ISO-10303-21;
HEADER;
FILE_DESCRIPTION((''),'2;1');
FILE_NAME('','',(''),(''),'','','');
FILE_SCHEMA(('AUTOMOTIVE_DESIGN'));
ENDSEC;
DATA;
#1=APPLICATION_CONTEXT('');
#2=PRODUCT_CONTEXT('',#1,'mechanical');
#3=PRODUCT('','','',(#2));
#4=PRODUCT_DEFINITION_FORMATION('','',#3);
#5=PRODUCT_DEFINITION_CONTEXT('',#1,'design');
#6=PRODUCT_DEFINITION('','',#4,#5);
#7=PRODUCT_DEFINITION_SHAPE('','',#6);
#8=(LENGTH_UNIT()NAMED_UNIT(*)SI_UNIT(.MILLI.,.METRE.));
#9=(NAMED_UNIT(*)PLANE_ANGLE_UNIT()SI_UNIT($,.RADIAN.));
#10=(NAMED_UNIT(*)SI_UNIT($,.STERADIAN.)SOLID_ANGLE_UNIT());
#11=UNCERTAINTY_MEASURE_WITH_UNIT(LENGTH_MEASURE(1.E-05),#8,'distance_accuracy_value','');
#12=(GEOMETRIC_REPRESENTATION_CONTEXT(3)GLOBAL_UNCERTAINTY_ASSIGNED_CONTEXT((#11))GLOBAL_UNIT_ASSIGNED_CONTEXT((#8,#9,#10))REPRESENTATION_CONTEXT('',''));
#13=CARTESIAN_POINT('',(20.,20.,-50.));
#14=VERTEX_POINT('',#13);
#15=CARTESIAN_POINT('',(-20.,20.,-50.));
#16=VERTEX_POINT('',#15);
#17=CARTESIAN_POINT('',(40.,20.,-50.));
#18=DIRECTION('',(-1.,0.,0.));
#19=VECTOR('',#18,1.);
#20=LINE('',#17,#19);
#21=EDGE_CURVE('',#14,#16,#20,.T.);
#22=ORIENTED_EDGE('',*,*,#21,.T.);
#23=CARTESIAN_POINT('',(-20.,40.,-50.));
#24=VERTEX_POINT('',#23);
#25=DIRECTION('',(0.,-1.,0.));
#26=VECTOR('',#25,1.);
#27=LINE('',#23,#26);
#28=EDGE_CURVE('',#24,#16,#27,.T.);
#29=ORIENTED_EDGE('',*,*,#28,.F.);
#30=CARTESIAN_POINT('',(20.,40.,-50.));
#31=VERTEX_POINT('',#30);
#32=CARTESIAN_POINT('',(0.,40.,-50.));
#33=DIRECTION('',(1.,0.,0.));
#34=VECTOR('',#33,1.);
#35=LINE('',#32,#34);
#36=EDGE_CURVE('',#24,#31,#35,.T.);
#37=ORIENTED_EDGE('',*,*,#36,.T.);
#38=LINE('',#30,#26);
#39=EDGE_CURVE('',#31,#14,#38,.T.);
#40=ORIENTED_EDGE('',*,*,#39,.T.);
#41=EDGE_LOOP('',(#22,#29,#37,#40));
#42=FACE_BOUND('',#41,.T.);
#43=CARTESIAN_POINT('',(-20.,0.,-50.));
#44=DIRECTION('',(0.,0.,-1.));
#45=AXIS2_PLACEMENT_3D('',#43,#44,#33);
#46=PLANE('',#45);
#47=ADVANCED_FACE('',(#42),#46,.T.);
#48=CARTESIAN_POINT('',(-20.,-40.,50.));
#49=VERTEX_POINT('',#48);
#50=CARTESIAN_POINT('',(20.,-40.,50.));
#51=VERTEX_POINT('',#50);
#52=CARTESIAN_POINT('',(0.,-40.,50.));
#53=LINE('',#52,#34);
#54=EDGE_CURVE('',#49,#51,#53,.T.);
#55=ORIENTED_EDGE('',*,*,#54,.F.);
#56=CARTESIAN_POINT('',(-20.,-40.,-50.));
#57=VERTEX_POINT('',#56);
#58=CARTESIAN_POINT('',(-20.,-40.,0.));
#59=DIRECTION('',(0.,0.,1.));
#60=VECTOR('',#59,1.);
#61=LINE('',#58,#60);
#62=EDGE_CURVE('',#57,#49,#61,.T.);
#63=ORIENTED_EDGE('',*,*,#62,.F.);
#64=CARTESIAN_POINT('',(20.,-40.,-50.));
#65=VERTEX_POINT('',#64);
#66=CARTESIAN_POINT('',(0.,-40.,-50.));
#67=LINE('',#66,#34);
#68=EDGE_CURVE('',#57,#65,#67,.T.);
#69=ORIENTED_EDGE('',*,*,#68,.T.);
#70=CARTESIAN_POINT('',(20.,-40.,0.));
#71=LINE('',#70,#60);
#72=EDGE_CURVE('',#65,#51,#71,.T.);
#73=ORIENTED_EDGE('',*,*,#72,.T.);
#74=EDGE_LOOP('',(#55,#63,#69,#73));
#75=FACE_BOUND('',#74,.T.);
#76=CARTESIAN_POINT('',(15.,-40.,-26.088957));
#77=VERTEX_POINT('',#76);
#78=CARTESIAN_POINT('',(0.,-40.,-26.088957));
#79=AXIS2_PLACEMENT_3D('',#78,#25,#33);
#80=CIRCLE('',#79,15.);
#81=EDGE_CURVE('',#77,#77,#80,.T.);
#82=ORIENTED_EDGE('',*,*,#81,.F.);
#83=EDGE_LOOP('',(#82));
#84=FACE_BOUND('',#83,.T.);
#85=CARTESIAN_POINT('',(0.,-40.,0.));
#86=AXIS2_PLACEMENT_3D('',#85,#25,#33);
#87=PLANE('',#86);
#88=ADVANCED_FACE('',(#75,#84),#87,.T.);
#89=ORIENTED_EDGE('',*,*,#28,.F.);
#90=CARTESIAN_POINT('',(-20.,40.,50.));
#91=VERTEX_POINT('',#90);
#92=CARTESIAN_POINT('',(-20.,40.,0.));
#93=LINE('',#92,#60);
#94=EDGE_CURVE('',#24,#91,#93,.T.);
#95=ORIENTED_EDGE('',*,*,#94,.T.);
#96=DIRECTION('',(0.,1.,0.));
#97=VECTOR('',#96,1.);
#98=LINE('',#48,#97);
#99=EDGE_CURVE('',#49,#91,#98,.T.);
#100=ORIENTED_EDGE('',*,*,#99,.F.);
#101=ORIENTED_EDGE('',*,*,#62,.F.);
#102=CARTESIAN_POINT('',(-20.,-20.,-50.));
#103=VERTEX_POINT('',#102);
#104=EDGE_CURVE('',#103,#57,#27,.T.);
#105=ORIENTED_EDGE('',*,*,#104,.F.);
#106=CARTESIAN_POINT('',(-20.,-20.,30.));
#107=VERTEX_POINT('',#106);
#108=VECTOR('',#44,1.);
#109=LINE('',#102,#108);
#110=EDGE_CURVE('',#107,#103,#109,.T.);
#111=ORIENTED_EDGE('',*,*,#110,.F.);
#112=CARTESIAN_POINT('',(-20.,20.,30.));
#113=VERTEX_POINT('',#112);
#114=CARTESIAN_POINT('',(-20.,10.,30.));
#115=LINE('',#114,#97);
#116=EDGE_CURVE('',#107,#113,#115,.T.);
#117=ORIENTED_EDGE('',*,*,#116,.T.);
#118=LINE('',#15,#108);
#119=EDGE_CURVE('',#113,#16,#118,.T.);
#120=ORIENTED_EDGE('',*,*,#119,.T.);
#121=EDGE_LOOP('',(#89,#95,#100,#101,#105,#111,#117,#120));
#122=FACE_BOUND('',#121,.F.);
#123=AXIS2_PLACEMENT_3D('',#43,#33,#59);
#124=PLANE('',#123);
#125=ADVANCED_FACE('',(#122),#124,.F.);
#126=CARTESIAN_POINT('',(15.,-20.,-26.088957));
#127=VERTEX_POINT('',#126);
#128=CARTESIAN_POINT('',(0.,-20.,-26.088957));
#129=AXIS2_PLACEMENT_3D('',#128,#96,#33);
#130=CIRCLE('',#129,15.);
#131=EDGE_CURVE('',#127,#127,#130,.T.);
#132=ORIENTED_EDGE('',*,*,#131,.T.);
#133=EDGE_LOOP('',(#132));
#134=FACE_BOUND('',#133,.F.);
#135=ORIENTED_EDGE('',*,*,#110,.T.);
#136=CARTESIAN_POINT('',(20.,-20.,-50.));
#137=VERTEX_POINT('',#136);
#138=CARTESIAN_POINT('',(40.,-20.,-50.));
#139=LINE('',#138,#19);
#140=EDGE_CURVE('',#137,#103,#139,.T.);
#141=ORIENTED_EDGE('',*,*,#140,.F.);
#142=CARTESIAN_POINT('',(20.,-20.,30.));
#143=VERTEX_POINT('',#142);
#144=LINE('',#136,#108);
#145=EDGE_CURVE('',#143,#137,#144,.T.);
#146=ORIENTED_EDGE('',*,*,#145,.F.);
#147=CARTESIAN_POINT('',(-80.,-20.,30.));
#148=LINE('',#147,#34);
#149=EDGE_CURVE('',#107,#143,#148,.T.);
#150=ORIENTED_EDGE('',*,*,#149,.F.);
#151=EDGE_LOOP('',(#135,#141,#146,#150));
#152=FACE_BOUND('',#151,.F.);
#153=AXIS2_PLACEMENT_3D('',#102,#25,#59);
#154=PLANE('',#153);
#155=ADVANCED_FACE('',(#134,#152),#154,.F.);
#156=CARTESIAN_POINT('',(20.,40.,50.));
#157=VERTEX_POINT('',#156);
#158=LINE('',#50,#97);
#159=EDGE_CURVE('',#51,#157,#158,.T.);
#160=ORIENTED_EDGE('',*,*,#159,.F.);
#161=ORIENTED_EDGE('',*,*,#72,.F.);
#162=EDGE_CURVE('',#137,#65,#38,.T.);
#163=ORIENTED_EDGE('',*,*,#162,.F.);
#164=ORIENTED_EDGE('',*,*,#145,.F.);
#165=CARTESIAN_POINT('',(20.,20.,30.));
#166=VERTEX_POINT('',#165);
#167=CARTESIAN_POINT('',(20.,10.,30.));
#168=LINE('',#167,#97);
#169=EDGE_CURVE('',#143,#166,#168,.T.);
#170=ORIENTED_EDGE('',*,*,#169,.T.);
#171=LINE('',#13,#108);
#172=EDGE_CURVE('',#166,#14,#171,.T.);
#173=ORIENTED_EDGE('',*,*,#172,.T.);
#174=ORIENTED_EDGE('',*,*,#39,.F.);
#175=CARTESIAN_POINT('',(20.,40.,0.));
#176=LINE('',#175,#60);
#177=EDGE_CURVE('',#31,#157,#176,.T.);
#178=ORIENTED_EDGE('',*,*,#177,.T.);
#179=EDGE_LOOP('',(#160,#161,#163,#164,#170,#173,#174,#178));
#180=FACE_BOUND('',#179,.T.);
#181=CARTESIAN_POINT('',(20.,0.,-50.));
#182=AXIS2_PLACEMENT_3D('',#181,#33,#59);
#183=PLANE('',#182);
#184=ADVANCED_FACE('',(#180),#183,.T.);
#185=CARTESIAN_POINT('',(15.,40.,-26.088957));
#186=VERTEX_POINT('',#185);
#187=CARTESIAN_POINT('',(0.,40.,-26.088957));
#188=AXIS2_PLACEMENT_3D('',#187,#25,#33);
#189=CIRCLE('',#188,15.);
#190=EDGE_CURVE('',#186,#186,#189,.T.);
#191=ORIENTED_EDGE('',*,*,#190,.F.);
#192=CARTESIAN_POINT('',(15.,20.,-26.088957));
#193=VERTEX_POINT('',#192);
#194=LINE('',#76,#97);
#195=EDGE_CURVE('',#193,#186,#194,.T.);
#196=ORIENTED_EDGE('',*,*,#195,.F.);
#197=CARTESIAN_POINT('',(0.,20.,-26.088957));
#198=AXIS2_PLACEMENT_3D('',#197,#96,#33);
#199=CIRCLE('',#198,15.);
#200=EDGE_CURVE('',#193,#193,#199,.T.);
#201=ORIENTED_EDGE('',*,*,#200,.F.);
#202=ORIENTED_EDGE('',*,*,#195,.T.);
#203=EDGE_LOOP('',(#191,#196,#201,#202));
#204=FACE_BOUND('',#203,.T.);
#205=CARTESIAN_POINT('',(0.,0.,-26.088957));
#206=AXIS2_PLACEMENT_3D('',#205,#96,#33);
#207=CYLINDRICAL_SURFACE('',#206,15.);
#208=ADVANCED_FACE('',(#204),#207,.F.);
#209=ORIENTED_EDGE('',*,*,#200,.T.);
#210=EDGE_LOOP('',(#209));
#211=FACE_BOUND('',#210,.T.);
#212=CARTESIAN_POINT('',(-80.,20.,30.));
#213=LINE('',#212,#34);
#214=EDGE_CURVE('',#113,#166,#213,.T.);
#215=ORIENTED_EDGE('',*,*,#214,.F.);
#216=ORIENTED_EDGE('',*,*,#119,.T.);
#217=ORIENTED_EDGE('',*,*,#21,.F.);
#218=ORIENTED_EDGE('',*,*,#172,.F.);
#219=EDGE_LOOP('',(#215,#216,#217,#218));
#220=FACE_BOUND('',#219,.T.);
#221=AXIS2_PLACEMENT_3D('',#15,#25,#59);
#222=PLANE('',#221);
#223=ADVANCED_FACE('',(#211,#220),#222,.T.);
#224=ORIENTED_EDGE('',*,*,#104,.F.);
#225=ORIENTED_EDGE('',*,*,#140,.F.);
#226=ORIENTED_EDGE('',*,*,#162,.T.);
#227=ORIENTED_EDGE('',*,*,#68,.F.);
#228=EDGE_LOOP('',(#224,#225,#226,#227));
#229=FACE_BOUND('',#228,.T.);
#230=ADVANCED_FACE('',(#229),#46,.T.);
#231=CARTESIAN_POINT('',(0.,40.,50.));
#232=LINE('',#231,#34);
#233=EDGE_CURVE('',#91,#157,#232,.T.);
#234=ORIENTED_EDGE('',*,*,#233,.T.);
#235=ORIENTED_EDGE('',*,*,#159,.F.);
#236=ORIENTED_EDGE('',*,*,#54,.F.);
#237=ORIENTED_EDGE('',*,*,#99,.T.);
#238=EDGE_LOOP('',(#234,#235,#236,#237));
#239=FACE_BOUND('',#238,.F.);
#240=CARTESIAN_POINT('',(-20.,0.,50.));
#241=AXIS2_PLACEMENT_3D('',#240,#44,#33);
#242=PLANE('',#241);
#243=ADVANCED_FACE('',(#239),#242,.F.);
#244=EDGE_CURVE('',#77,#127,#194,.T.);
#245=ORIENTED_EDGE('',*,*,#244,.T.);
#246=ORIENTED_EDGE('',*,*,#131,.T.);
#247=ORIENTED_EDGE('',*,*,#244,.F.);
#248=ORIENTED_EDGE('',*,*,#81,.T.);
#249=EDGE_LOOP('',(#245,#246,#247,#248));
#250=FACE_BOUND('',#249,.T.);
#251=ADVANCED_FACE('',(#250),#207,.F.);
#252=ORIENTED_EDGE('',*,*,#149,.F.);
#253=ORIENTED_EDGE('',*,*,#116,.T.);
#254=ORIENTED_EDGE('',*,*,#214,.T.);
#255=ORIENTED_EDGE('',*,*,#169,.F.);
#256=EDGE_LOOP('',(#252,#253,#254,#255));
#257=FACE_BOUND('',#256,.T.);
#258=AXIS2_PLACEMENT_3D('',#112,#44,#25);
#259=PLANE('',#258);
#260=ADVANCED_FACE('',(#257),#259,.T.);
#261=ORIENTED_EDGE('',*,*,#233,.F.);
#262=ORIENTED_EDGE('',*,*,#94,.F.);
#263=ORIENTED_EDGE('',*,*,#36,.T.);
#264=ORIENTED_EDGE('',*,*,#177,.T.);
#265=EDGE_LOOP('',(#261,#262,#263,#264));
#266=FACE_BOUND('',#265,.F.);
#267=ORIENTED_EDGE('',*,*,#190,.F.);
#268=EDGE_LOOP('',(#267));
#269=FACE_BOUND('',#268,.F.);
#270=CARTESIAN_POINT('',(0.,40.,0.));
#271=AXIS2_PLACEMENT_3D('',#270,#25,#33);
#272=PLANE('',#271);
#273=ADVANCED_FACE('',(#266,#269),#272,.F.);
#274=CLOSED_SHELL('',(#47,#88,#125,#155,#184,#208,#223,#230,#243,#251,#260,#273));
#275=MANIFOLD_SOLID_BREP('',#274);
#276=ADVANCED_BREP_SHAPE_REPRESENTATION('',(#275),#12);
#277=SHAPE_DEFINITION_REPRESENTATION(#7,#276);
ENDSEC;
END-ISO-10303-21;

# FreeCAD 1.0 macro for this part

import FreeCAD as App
import Part
import Sketcher

V = App.Vector
Q = App.Units.Quantity


def add_polygon(sketch, points):
    """Adds a closed chain of lines whose ends are joined by coincident constraints."""
    first, n = sketch.GeometryCount, len(points)
    for a, b in zip(points, points[1:] + points[:1]):
        sketch.addGeometry(Part.LineSegment(App.Vector(*a, 0), App.Vector(*b, 0)), False)
    for i in range(n):
        sketch.addConstraint(Sketcher.Constraint("Coincident", first + i, 2, first + (i + 1) % n, 1))

doc = App.newDocument("Part")
body = doc.addObject("PartDesign::Body", "Body")

# Sketch on XZ plane
sketch1 = doc.addObject("Sketcher::SketchObject", "Sketch")
body.addObject(sketch1)
sketch1.AttachmentSupport = (doc.XZ_Plane, [""])
sketch1.MapMode = "FlatFace"
add_polygon(sketch1, [(-20, 50), (-20, -50), (20, -50), (20, 50)])  # lines 0-3
sketch1.addGeometry(Part.Circle(V(0, -26, 0), V(0, 0, 1), 15), False)  # 4
sketch1.addConstraint(Sketcher.Constraint("Vertical", 0))
sketch1.addConstraint(Sketcher.Constraint("Horizontal", 1))
sketch1.addConstraint(Sketcher.Constraint("Vertical", 2))
sketch1.addConstraint(Sketcher.Constraint("Horizontal", 3))
sketch1.addConstraint(Sketcher.Constraint("Symmetric", 0, 2, 2, 2, -1, 1))
sketch1.addConstraint(Sketcher.Constraint("PointOnObject", 4, 3, -2))
sketch1.addConstraint(Sketcher.Constraint("Diameter", 4, Q("30 mm")))
sketch1.addConstraint(Sketcher.Constraint("DistanceX", 1, 1, 1, 2, Q("40 mm")))
sketch1.addConstraint(Sketcher.Constraint("DistanceY", 0, 2, 0, 1, Q("100 mm")))
sketch1.addConstraint(Sketcher.Constraint("DistanceY", 4, 3, -1, 1, Q("26.088957 mm")))
pad1 = doc.addObject("PartDesign::Pad", "Pad")
body.addObject(pad1)
pad1.Profile = sketch1
pad1.Length = 80
pad1.Midplane = True

# Sketch on YZ plane
sketch2 = doc.addObject("Sketcher::SketchObject", "Sketch001")
body.addObject(sketch2)
sketch2.AttachmentSupport = (doc.YZ_Plane, [""])
sketch2.MapMode = "FlatFace"
sketch2.AttachmentOffset = App.Placement(V(0, 0, -20), App.Rotation())
add_polygon(sketch2, [(20, 30), (20, -50), (-20, -50), (-20, 30)])  # lines 0-3
sketch2.addConstraint(Sketcher.Constraint("Vertical", 0))
sketch2.addConstraint(Sketcher.Constraint("Horizontal", 1))
sketch2.addConstraint(Sketcher.Constraint("Vertical", 2))
sketch2.addConstraint(Sketcher.Constraint("Horizontal", 3))
sketch2.addConstraint(Sketcher.Constraint("DistanceX", 1, 2, 1, 1, Q("40 mm")))
sketch2.addConstraint(Sketcher.Constraint("DistanceY", 0, 2, 0, 1, Q("80 mm")))
sketch2.addConstraint(Sketcher.Constraint("DistanceX", -1, 1, 0, 2, Q("20 mm")))
sketch2.addConstraint(Sketcher.Constraint("DistanceY", 0, 2, -1, 1, Q("50 mm")))
pocket1 = doc.addObject("PartDesign::Pocket", "Pocket")
body.addObject(pocket1)
pocket1.Profile = sketch2
pocket1.Length = 120
pocket1.Midplane = True

doc.recompute()
